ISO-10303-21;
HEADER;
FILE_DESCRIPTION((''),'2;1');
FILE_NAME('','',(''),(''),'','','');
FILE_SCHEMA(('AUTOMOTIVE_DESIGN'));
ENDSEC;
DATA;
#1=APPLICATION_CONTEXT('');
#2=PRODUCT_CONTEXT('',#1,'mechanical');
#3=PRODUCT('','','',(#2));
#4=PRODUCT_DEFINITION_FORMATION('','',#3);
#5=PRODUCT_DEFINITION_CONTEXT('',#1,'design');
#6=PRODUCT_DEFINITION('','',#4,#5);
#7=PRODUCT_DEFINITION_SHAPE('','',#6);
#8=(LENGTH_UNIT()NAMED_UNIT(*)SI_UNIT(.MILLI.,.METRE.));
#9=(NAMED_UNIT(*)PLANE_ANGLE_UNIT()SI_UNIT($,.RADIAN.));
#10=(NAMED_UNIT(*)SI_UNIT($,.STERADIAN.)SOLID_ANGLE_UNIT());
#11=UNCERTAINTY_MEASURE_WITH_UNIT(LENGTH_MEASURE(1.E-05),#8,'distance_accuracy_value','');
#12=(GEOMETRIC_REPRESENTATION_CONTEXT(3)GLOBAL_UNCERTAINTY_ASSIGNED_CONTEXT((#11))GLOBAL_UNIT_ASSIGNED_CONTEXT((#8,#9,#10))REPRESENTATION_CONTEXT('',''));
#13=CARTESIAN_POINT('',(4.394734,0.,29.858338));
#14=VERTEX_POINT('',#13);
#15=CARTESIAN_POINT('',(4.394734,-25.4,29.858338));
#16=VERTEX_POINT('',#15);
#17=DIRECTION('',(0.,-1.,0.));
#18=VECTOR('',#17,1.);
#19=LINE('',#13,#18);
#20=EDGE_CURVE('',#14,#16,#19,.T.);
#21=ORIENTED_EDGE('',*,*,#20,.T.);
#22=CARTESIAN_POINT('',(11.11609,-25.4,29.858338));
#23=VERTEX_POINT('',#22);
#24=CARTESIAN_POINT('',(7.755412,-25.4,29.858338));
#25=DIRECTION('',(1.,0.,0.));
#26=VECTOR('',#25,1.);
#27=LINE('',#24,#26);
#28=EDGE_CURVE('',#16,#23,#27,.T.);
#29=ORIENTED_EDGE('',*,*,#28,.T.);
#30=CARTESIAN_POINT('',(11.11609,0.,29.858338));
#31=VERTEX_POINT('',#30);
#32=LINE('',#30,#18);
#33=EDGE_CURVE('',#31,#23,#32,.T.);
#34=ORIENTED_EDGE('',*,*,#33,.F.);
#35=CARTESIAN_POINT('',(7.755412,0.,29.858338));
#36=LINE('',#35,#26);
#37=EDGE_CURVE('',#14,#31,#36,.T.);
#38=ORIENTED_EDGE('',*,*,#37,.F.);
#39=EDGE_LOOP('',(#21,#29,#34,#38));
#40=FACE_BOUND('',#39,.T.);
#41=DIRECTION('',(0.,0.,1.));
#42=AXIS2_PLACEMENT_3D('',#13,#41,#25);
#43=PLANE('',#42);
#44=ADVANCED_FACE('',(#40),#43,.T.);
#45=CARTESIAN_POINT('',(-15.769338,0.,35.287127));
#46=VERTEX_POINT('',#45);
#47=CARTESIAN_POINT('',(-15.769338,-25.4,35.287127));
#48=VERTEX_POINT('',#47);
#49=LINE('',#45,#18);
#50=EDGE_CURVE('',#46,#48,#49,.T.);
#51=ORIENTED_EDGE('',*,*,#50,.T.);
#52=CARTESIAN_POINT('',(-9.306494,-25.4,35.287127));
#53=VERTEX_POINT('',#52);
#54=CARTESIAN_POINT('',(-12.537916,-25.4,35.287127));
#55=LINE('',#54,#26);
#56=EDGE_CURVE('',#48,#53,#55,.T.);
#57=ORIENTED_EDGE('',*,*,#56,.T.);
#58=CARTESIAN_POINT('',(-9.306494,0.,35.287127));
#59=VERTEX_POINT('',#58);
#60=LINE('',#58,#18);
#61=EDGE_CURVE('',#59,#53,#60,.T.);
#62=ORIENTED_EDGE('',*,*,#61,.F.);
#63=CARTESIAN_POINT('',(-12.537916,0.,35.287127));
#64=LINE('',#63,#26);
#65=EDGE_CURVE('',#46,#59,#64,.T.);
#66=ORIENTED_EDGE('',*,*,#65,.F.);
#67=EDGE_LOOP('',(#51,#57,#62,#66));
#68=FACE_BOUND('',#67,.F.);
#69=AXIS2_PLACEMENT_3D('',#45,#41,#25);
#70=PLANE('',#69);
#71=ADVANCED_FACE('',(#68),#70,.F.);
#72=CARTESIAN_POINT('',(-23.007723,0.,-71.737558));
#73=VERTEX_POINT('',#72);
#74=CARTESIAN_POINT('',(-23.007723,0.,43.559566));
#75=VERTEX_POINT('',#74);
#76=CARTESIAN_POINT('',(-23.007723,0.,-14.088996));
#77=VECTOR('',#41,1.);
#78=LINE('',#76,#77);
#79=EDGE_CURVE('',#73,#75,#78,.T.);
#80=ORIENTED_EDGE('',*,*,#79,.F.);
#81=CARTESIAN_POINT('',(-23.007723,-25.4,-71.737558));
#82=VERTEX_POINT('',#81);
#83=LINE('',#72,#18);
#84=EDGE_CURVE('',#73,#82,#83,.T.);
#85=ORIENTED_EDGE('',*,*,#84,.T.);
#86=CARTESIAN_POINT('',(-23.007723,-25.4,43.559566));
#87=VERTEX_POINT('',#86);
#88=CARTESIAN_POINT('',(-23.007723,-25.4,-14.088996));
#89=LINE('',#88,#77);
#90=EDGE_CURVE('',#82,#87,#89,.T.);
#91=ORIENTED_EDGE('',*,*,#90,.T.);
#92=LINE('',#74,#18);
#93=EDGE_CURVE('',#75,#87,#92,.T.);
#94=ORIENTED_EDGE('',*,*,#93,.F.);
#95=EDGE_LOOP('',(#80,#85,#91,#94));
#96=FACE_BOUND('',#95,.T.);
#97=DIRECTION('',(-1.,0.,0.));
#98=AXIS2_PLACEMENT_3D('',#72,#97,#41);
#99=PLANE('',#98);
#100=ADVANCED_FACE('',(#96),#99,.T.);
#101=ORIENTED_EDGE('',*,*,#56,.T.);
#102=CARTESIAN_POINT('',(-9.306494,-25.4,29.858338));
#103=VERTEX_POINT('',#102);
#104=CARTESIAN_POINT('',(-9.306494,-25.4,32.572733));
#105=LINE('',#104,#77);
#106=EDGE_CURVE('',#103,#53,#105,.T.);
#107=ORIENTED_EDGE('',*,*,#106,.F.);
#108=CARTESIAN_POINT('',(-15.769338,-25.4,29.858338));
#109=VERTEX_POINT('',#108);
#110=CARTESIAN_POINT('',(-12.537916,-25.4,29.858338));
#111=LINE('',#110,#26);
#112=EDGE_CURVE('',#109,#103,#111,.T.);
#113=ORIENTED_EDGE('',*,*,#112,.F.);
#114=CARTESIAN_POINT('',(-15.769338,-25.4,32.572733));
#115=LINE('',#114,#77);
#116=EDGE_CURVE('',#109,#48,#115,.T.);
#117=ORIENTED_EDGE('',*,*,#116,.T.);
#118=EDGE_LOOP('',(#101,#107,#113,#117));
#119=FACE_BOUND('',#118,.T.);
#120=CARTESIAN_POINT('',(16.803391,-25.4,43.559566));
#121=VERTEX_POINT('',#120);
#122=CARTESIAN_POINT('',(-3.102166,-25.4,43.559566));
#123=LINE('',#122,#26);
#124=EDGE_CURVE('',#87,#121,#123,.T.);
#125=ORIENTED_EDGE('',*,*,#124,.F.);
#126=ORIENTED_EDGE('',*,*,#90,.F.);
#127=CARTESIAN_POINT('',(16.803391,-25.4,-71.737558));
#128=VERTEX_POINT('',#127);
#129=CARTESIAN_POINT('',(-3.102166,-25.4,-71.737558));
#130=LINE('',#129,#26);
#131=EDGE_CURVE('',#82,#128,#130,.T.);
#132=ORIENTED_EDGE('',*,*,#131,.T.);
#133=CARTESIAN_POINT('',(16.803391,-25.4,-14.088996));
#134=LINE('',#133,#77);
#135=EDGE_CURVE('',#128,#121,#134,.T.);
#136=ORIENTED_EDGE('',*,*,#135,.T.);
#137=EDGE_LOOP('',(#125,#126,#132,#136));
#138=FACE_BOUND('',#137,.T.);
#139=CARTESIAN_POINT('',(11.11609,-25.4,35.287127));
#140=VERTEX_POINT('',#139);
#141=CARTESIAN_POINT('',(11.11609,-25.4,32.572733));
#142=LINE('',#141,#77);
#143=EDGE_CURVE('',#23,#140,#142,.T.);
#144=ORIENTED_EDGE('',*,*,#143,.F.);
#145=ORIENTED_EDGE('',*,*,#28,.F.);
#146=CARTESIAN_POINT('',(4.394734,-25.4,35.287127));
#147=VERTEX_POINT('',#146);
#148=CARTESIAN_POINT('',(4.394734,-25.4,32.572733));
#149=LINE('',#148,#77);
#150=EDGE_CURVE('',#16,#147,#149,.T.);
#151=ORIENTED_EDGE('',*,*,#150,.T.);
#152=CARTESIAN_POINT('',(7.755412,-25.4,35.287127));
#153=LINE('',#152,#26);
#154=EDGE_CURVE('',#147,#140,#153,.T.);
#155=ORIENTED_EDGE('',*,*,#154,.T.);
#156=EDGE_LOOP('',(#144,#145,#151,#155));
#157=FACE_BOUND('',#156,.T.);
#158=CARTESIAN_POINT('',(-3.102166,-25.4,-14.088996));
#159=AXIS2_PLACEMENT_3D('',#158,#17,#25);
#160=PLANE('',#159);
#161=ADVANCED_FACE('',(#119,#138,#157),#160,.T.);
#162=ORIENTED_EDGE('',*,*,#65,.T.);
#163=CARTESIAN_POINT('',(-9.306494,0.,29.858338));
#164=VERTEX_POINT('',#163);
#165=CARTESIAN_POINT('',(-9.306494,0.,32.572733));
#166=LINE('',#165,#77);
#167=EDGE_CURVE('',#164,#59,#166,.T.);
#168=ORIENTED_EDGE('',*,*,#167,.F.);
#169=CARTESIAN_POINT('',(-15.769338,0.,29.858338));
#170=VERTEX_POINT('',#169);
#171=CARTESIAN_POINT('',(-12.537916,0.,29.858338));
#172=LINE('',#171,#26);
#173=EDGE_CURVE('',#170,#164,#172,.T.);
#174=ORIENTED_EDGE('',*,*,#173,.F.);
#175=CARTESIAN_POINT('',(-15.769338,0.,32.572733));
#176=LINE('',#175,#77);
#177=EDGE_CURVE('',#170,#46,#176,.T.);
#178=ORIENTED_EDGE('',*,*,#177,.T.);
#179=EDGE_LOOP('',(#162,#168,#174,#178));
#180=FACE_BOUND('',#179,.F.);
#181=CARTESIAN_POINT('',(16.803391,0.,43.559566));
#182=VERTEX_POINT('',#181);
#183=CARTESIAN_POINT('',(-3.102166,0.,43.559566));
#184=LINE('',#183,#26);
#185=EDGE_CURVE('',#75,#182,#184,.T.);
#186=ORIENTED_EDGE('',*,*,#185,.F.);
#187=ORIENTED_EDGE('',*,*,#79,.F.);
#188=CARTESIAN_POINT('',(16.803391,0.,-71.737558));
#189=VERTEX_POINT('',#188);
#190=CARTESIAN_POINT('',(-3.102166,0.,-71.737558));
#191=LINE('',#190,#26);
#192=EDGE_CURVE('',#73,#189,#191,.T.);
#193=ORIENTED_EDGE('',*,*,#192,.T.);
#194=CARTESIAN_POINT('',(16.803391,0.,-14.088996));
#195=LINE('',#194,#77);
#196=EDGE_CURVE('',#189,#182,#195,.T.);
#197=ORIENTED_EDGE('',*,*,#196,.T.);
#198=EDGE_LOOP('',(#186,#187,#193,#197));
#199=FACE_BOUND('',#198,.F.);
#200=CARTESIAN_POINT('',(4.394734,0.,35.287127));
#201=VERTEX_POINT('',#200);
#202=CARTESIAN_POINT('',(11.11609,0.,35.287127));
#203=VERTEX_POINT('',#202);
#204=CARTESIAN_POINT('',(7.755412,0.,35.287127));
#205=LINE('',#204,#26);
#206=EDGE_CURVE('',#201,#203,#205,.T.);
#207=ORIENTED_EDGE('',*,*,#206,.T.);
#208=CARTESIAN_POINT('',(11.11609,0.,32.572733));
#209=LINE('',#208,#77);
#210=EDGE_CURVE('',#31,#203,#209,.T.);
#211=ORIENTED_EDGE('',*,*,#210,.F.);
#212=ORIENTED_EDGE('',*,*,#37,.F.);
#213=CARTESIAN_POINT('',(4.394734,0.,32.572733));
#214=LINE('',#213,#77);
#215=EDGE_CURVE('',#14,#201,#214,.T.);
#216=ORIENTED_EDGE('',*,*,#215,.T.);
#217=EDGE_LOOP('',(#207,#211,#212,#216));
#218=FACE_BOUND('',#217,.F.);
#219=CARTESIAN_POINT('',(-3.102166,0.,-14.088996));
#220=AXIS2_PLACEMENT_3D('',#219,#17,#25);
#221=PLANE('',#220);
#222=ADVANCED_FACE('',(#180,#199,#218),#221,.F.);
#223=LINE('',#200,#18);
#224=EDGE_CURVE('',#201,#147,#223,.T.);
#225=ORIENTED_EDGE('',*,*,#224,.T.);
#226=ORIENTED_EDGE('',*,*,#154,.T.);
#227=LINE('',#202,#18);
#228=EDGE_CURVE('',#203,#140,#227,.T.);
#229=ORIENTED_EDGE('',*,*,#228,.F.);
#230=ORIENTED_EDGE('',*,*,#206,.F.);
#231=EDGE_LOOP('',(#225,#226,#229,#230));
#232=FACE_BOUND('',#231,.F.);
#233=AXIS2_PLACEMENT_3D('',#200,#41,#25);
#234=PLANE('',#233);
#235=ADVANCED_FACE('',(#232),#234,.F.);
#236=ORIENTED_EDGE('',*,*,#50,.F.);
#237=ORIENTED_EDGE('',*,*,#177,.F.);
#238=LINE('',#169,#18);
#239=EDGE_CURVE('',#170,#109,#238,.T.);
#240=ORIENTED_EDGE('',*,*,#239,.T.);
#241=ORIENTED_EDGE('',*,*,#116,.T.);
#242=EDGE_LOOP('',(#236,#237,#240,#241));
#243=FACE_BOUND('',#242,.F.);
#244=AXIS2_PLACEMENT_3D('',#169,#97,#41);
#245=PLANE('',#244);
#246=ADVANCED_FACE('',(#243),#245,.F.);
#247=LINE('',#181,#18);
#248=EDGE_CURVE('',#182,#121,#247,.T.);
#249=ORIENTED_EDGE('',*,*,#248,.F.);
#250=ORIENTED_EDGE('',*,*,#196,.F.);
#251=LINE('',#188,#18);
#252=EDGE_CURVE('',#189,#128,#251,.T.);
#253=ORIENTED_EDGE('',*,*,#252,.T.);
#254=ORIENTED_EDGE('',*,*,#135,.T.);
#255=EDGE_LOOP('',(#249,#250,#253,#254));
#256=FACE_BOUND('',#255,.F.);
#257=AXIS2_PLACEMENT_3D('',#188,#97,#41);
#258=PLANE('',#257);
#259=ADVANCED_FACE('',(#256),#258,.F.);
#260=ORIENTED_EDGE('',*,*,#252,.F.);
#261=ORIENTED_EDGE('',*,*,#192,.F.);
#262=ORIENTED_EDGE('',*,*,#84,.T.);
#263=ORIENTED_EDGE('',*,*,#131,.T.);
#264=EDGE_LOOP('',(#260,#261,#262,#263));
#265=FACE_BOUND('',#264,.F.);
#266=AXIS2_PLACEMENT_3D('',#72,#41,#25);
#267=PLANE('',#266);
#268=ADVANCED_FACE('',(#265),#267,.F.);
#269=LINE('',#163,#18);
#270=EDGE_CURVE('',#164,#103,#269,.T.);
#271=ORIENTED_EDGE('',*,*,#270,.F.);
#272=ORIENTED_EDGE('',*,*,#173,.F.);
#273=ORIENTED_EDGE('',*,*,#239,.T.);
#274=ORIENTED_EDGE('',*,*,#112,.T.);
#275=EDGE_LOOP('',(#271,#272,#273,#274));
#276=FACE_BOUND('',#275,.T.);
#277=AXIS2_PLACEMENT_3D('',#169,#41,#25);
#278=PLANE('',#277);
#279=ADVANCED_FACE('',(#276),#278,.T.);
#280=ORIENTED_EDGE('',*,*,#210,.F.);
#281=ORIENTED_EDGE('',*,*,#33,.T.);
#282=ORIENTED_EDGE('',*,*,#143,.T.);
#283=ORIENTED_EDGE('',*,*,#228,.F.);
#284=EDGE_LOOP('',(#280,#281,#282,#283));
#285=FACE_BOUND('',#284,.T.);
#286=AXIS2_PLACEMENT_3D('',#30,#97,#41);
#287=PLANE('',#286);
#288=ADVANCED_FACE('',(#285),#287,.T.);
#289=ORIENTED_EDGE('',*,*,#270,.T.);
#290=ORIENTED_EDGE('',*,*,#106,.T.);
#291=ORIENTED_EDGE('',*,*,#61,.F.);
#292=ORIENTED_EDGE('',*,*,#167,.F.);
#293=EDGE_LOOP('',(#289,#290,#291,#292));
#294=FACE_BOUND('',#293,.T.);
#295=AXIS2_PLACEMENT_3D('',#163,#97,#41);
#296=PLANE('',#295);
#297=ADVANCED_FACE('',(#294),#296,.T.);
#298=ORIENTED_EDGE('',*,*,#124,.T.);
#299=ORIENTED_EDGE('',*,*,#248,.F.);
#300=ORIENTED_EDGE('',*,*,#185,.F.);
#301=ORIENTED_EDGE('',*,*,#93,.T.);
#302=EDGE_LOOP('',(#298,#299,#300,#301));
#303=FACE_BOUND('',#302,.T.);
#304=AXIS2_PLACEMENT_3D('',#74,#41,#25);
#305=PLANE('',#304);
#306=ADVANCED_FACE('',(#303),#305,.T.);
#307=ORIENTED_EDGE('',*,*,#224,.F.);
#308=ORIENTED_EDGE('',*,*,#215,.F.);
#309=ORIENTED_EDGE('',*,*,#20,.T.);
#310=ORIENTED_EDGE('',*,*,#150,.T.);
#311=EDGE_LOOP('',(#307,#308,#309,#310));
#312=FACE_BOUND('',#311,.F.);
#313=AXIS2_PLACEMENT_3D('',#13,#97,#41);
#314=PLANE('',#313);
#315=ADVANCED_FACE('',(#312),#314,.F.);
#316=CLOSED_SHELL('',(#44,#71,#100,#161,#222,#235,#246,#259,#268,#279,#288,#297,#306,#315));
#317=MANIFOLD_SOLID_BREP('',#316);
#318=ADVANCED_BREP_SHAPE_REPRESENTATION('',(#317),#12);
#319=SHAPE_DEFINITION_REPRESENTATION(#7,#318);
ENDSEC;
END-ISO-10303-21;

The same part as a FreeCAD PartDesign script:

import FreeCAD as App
import Part
import Sketcher
Q = App.Units.Quantity

doc = App.newDocument("Part")
params = doc.addObject("Spreadsheet::Sheet", "Params")
for row, (alias, value) in enumerate([
    ("pad1_length", "1 in"),
], start=1):
    params.set(f"A{row}", alias)
    params.set(f"B{row}", "=" + value)
    params.setAlias(f"B{row}", alias)

body = doc.addObject("PartDesign::Body", "Body")

# Sketch on XZ plane
sketch1 = body.newObject("Sketcher::SketchObject", "Sketch")
sketch1.AttachmentSupport = (doc.getObject("XZ_Plane"), [""])
sketch1.MapMode = "FlatFace"
sketch1.addGeometry([
    Part.LineSegment(App.Vector(-23, 44, 0), App.Vector(-23, -72, 0)),  # 0
    Part.LineSegment(App.Vector(-23, -72, 0), App.Vector(17, -72, 0)),  # 1
    Part.LineSegment(App.Vector(17, -72, 0), App.Vector(17, 44, 0)),  # 2
    Part.LineSegment(App.Vector(17, 44, 0), App.Vector(-23, 44, 0)),  # 3
    Part.LineSegment(App.Vector(-9, 30, 0), App.Vector(-16, 30, 0)),  # 4
    Part.LineSegment(App.Vector(-16, 30, 0), App.Vector(-16, 35, 0)),  # 5
    Part.LineSegment(App.Vector(-16, 35, 0), App.Vector(-9, 35, 0)),  # 6
    Part.LineSegment(App.Vector(-9, 35, 0), App.Vector(-9, 30, 0)),  # 7
    Part.LineSegment(App.Vector(11, 30, 0), App.Vector(4, 30, 0)),  # 8
    Part.LineSegment(App.Vector(4, 30, 0), App.Vector(4, 35, 0)),  # 9
    Part.LineSegment(App.Vector(4, 35, 0), App.Vector(11, 35, 0)),  # 10
    Part.LineSegment(App.Vector(11, 35, 0), App.Vector(11, 30, 0)),  # 11
], False)
sketch1.addConstraint([
    Sketcher.Constraint("Coincident", 0, 2, 1, 1),
    Sketcher.Constraint("Coincident", 1, 2, 2, 1),
    Sketcher.Constraint("Coincident", 2, 2, 3, 1),
    Sketcher.Constraint("Coincident", 3, 2, 0, 1),
    Sketcher.Constraint("Coincident", 4, 2, 5, 1),
    Sketcher.Constraint("Coincident", 5, 2, 6, 1),
    Sketcher.Constraint("Coincident", 6, 2, 7, 1),
    Sketcher.Constraint("Coincident", 7, 2, 4, 1),
    Sketcher.Constraint("Coincident", 8, 2, 9, 1),
    Sketcher.Constraint("Coincident", 9, 2, 10, 1),
    Sketcher.Constraint("Coincident", 10, 2, 11, 1),
    Sketcher.Constraint("Coincident", 11, 2, 8, 1),
    Sketcher.Constraint("Vertical", 0),
    Sketcher.Constraint("Horizontal", 1),
    Sketcher.Constraint("Vertical", 2),
    Sketcher.Constraint("Horizontal", 3),
    Sketcher.Constraint("Horizontal", 4),
    Sketcher.Constraint("Vertical", 5),
    Sketcher.Constraint("Horizontal", 6),
    Sketcher.Constraint("Vertical", 7),
    Sketcher.Constraint("Horizontal", 8),
    Sketcher.Constraint("Vertical", 9),
    Sketcher.Constraint("Horizontal", 10),
    Sketcher.Constraint("Vertical", 11),
    Sketcher.Constraint("Horizontal", 7, 2, 8, 2),
    Sketcher.Constraint("Horizontal", 6, 2, 9, 2),
    Sketcher.Constraint("DistanceY", 5, 1, 5, 2, Q("5.428789 mm")),
    Sketcher.Constraint("DistanceX", 10, 2, 2, 2, Q("5.687301 mm")),
    Sketcher.Constraint("DistanceX", 1, 1, 1, 2, Q("39.811114 mm")),
    Sketcher.Constraint("DistanceX", 4, 2, 4, 1, Q("6.462844 mm")),
    Sketcher.Constraint("DistanceX", 8, 2, 8, 1, Q("6.721356 mm")),
    Sketcher.Constraint("DistanceY", 0, 2, 0, 1, Q("115.297124 mm")),
    Sketcher.Constraint("DistanceY", 0, 2, -1, 1, Q("71.737558 mm")),
    Sketcher.Constraint("DistanceX", -1, 1, 1, 2, Q("16.803391 mm")),
    Sketcher.Constraint("DistanceY", -1, 1, 4, 2, Q("29.858338 mm")),
    Sketcher.Constraint("DistanceX", 4, 2, 2, 2, Q("32.572729 mm")),
])
pad1 = body.newObject("PartDesign::Pad", "Pad")
pad1.Profile = sketch1
pad1.setExpression("Length", "Params.pad1_length")

doc.recompute()
